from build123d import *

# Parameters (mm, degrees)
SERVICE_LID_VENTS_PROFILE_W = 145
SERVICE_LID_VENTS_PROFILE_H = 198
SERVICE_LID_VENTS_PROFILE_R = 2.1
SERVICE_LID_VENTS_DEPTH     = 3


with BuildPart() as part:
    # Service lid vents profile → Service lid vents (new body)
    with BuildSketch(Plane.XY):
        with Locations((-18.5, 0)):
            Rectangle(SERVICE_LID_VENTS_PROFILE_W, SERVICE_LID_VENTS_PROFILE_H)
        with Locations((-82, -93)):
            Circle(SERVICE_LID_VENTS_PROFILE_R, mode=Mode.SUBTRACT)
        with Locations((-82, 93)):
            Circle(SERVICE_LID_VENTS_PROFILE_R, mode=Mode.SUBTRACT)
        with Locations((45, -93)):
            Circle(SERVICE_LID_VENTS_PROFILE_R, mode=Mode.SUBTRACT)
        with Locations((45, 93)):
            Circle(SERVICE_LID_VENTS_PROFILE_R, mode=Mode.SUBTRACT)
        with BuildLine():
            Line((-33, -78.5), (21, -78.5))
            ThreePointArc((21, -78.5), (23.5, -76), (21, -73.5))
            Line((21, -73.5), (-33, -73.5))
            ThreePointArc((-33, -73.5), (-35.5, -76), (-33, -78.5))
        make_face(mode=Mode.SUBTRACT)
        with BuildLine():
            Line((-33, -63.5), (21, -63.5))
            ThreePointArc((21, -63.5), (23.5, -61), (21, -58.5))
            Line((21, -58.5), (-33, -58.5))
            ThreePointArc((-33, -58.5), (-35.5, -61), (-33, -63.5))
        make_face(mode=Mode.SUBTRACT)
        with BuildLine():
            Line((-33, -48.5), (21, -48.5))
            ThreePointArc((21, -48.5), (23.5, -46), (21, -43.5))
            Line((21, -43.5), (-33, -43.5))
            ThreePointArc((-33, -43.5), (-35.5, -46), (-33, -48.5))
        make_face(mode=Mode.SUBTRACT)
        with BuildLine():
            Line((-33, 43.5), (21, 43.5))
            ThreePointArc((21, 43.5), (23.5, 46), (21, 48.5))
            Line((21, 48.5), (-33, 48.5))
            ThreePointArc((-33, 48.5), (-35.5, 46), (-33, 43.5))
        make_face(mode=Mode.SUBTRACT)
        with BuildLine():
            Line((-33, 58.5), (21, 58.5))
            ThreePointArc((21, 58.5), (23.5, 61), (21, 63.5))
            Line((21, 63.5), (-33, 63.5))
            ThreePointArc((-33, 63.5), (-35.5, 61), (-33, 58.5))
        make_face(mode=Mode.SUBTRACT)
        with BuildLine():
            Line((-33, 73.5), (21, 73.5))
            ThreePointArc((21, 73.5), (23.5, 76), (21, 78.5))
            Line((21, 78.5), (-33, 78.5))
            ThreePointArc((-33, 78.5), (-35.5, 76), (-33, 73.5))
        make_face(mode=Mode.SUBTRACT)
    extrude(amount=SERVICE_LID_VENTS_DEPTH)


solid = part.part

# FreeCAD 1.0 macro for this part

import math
import FreeCAD as App
import Part
import Sketcher

V = App.Vector
Q = App.Units.Quantity

doc = App.newDocument("Part")
body = doc.addObject("PartDesign::Body", "Body")

sketch1 = body.newObject("Sketcher::SketchObject", "Sketch")
sketch1.AttachmentSupport = (doc.getObject("XY_Plane"), [""])
sketch1.MapMode = "FlatFace"
sketch1.addGeometry([
    Part.LineSegment(V(-91, 99, 0), V(-91, -99, 0)),
    Part.LineSegment(V(-91, -99, 0), V(54, -99, 0)),
    Part.LineSegment(V(54, -99, 0), V(54, 99, 0)),
    Part.LineSegment(V(54, 99, 0), V(-91, 99, 0)),
    Part.Circle(V(-82, -93, 0), V(0, 0, 1), 2.1),
    Part.LineSegment(V(21, -78.5, 0), V(-33, -78.5, 0)),
    Part.ArcOfCircle(Part.Circle(V(-33, -76, 0), V(0, 0, 1), 2.5), math.radians(90), math.radians(270)),
    Part.LineSegment(V(-33, -73.5, 0), V(21, -73.5, 0)),
    Part.ArcOfCircle(Part.Circle(V(21, -76, 0), V(0, 0, 1), 2.5), math.radians(-90), math.radians(90)),
    Part.LineSegment(V(21, -63.5, 0), V(-33, -63.5, 0)),
    Part.ArcOfCircle(Part.Circle(V(-33, -61, 0), V(0, 0, 1), 2.5), math.radians(90), math.radians(270)),
    Part.LineSegment(V(-33, -58.5, 0), V(21, -58.5, 0)),
    Part.ArcOfCircle(Part.Circle(V(21, -61, 0), V(0, 0, 1), 2.5), math.radians(-90), math.radians(90)),
    Part.Circle(V(45, -93, 0), V(0, 0, 1), 2.1),
    Part.LineSegment(V(21, -48.5, 0), V(-33, -48.5, 0)),
    Part.ArcOfCircle(Part.Circle(V(-33, -46, 0), V(0, 0, 1), 2.5), math.radians(90), math.radians(270)),
    Part.LineSegment(V(-33, -43.5, 0), V(21, -43.5, 0)),
    Part.ArcOfCircle(Part.Circle(V(21, -46, 0), V(0, 0, 1), 2.5), math.radians(-90), math.radians(90)),
    Part.Circle(V(-82, 93, 0), V(0, 0, 1), 2.1),
    Part.LineSegment(V(21, 43.5, 0), V(-33, 43.5, 0)),
    Part.ArcOfCircle(Part.Circle(V(-33, 46, 0), V(0, 0, 1), 2.5), math.radians(90), math.radians(270)),
    Part.LineSegment(V(-33, 48.5, 0), V(21, 48.5, 0)),
    Part.ArcOfCircle(Part.Circle(V(21, 46, 0), V(0, 0, 1), 2.5), math.radians(-90), math.radians(90)),
    Part.LineSegment(V(21, 58.5, 0), V(-33, 58.5, 0)),
    Part.ArcOfCircle(Part.Circle(V(-33, 61, 0), V(0, 0, 1), 2.5), math.radians(90), math.radians(270)),
    Part.LineSegment(V(-33, 63.5, 0), V(21, 63.5, 0)),
    Part.ArcOfCircle(Part.Circle(V(21, 61, 0), V(0, 0, 1), 2.5), math.radians(-90), math.radians(90)),
    Part.LineSegment(V(21, 73.5, 0), V(-33, 73.5, 0)),
    Part.ArcOfCircle(Part.Circle(V(-33, 76, 0), V(0, 0, 1), 2.5), math.radians(90), math.radians(270)),
    Part.LineSegment(V(-33, 78.5, 0), V(21, 78.5, 0)),
    Part.ArcOfCircle(Part.Circle(V(21, 76, 0), V(0, 0, 1), 2.5), math.radians(-90), math.radians(90)),
    Part.Circle(V(45, 93, 0), V(0, 0, 1), 2.1),
], False)
sketch1.addConstraint([
    Sketcher.Constraint("Coincident", 0, 2, 1, 1),
    Sketcher.Constraint("Coincident", 1, 2, 2, 1),
    Sketcher.Constraint("Coincident", 2, 2, 3, 1),
    Sketcher.Constraint("Coincident", 3, 2, 0, 1),
    Sketcher.Constraint("Tangent", 5, 2, 6, 2),
    Sketcher.Constraint("Tangent", 6, 1, 7, 1),
    Sketcher.Constraint("Tangent", 7, 2, 8, 2),
    Sketcher.Constraint("Tangent", 8, 1, 5, 1),
    Sketcher.Constraint("Tangent", 9, 2, 10, 2),
    Sketcher.Constraint("Tangent", 10, 1, 11, 1),
    Sketcher.Constraint("Tangent", 11, 2, 12, 2),
    Sketcher.Constraint("Tangent", 12, 1, 9, 1),
    Sketcher.Constraint("Tangent", 14, 2, 15, 2),
    Sketcher.Constraint("Tangent", 15, 1, 16, 1),
    Sketcher.Constraint("Tangent", 16, 2, 17, 2),
    Sketcher.Constraint("Tangent", 17, 1, 14, 1),
    Sketcher.Constraint("Tangent", 19, 2, 20, 2),
    Sketcher.Constraint("Tangent", 20, 1, 21, 1),
    Sketcher.Constraint("Tangent", 21, 2, 22, 2),
    Sketcher.Constraint("Tangent", 22, 1, 19, 1),
    Sketcher.Constraint("Tangent", 23, 2, 24, 2),
    Sketcher.Constraint("Tangent", 24, 1, 25, 1),
    Sketcher.Constraint("Tangent", 25, 2, 26, 2),
    Sketcher.Constraint("Tangent", 26, 1, 23, 1),
    Sketcher.Constraint("Tangent", 27, 2, 28, 2),
    Sketcher.Constraint("Tangent", 28, 1, 29, 1),
    Sketcher.Constraint("Tangent", 29, 2, 30, 2),
    Sketcher.Constraint("Tangent", 30, 1, 27, 1),
    Sketcher.Constraint("Vertical", 0),
    Sketcher.Constraint("Horizontal", 1),
    Sketcher.Constraint("Vertical", 2),
    Sketcher.Constraint("Horizontal", 3),
    Sketcher.Constraint("Horizontal", 5),
    Sketcher.Constraint("Horizontal", 7),
    Sketcher.Constraint("Horizontal", 9),
    Sketcher.Constraint("Horizontal", 11),
    Sketcher.Constraint("Horizontal", 14),
    Sketcher.Constraint("Horizontal", 16),
    Sketcher.Constraint("Horizontal", 19),
    Sketcher.Constraint("Horizontal", 21),
    Sketcher.Constraint("Horizontal", 23),
    Sketcher.Constraint("Horizontal", 25),
    Sketcher.Constraint("Horizontal", 27),
    Sketcher.Constraint("Horizontal", 29),
    Sketcher.Constraint("Equal", 8, 10),
    Sketcher.Constraint("Equal", 4, 13),
    Sketcher.Constraint("Equal", 12, 15),
    Sketcher.Constraint("Equal", 13, 18),
    Sketcher.Constraint("Equal", 17, 20),
    Sketcher.Constraint("Equal", 22, 24),
    Sketcher.Constraint("Equal", 26, 28),
    Sketcher.Constraint("Equal", 18, 31),
    Sketcher.Constraint("Symmetric", 4, 3, 18, 3, -1),
    Sketcher.Constraint("Symmetric", 15, 3, 20, 3, -1),
    Sketcher.Constraint("Symmetric", 10, 3, 24, 3, -1),
    Sketcher.Constraint("Symmetric", 6, 3, 28, 3, -1),
    Sketcher.Constraint("Symmetric", 13, 3, 31, 3, -1),
    Sketcher.Constraint("Horizontal", 4, 3, 13, 3),
    Sketcher.Constraint("Vertical", 6, 3, 10, 3),
    Sketcher.Constraint("Vertical", 8, 3, 12, 3),
    Sketcher.Constraint("Vertical", 10, 3, 15, 3),
    Sketcher.Constraint("Vertical", 12, 3, 17, 3),
    Sketcher.Constraint("Vertical", 17, 3, 22, 3),
    Sketcher.Constraint("Vertical", 22, 3, 26, 3),
    Sketcher.Constraint("Vertical", 26, 3, 30, 3),
    Sketcher.Constraint("Diameter", 4, Q("4.2 mm")),
    Sketcher.Constraint("Radius", 6, Q("2.5 mm")),
    Sketcher.Constraint("DistanceX", 1, 1, 1, 2, Q("145 mm")),
    Sketcher.Constraint("DistanceX", 5, 2, 5, 1, Q("54 mm")),
    Sketcher.Constraint("DistanceY", 0, 2, 0, 1, Q("198 mm")),
    Sketcher.Constraint("DistanceX", 4, 3, -1, 1, Q("82 mm")),
    Sketcher.Constraint("DistanceY", 4, 3, -1, 1, Q("93 mm")),
    Sketcher.Constraint("DistanceX", 6, 3, -1, 1, Q("33 mm")),
    Sketcher.Constraint("DistanceY", 6, 3, -1, 1, Q("76 mm")),
    Sketcher.Constraint("DistanceY", 10, 3, -1, 1, Q("61 mm")),
    Sketcher.Constraint("DistanceX", -1, 1, 13, 3, Q("45 mm")),
    Sketcher.Constraint("DistanceY", 15, 3, -1, 1, Q("46 mm")),
    Sketcher.Constraint("DistanceX", 0, 2, -1, 1, Q("91 mm")),
    Sketcher.Constraint("DistanceY", 0, 2, -1, 1, Q("99 mm")),
])
pad1 = body.newObject("PartDesign::Pad", "Pad")
pad1.Profile = sketch1
pad1.Length = 3

doc.recompute()
